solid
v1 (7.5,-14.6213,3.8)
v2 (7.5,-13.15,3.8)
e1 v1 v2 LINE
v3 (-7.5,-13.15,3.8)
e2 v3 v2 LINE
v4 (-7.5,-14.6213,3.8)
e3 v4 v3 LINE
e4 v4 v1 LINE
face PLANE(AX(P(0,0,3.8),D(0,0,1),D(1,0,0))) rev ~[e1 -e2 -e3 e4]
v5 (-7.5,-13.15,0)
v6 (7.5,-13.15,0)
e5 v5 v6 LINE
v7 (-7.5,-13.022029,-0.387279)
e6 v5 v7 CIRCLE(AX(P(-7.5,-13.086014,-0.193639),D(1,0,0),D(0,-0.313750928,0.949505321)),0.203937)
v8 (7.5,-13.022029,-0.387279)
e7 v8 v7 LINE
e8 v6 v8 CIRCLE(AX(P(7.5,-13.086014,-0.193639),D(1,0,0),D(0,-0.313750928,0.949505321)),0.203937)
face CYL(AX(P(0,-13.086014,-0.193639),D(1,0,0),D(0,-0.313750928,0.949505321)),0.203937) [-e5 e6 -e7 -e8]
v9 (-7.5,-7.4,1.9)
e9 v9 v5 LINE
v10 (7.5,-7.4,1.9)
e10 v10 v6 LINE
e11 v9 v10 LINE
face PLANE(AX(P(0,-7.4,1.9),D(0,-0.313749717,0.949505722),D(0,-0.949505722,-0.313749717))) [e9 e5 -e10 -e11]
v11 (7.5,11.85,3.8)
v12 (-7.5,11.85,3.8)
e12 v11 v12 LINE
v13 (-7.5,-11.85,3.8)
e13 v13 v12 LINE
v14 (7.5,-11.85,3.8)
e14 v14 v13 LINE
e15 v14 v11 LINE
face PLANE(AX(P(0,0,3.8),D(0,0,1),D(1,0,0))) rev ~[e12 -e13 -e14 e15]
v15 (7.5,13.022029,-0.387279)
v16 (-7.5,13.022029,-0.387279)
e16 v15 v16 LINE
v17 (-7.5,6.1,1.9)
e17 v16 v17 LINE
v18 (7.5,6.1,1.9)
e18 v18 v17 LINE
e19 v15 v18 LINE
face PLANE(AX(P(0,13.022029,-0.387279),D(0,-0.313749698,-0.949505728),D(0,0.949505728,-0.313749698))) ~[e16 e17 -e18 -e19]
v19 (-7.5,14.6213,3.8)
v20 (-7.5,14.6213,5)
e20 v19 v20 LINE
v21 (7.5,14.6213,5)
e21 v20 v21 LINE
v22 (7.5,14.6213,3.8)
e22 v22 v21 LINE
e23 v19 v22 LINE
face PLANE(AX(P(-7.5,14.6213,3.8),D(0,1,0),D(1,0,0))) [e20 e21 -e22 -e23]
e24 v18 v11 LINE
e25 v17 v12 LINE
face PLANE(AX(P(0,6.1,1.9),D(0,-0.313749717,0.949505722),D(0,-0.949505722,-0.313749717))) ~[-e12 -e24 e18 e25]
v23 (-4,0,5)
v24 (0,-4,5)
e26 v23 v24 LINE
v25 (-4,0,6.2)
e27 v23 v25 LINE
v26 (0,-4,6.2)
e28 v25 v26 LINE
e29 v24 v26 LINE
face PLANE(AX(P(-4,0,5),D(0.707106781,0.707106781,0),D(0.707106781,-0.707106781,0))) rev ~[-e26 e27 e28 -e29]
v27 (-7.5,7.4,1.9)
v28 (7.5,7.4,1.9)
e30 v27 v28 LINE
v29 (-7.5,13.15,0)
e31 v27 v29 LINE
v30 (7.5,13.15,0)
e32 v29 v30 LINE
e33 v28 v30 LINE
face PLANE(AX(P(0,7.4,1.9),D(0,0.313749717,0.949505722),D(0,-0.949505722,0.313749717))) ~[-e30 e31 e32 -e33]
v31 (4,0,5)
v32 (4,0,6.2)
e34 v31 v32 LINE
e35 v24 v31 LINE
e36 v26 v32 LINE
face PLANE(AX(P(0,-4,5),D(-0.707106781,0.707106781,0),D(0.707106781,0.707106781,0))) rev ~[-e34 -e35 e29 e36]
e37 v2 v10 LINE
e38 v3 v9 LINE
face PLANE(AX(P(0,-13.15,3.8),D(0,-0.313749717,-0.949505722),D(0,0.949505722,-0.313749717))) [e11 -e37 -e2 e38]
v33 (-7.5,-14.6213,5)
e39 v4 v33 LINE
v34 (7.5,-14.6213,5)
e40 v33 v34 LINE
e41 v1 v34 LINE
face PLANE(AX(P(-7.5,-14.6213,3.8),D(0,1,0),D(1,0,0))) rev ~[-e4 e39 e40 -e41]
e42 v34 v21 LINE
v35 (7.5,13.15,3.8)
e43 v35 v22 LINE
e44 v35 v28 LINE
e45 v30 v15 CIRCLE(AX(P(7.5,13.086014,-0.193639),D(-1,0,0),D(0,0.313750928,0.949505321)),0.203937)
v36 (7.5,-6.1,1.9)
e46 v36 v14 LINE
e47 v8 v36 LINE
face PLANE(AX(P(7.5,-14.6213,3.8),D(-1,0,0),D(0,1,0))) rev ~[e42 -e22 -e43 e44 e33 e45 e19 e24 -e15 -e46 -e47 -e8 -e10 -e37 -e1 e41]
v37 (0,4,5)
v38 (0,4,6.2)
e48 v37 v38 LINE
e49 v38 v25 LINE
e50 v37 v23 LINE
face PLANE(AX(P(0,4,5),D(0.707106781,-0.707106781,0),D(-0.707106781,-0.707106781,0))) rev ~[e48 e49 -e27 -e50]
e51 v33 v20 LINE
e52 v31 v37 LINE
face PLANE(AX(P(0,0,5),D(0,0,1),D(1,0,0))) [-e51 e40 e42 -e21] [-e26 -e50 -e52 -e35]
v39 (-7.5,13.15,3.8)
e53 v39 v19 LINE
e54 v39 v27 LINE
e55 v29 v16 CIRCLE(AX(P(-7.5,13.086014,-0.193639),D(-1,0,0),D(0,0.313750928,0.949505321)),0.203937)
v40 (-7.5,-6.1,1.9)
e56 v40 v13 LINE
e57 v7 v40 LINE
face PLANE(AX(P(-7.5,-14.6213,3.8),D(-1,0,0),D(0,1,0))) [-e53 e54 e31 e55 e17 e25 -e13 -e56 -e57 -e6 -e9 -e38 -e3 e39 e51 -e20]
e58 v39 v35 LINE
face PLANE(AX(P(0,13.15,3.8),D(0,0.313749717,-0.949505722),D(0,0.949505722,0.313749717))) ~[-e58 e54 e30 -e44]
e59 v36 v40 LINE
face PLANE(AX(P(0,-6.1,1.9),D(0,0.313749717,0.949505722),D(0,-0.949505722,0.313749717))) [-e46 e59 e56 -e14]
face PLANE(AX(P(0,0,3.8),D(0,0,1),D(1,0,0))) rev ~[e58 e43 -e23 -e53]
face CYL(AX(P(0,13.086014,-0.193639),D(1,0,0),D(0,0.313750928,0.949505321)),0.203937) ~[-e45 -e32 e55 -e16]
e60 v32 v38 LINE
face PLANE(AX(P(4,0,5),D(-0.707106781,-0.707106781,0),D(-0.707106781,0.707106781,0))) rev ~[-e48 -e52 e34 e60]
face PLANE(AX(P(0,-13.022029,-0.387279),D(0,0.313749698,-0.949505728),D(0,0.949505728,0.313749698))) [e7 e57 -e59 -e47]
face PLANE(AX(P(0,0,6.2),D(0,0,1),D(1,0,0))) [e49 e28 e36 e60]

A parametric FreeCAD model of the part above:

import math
import FreeCAD as App
import Part
import Sketcher
from FreeCAD import Vector
Q = App.Units.Quantity

doc = App.newDocument("Part")
params = doc.addObject("Spreadsheet::Sheet", "Params")
for row, (alias, value) in enumerate([
    ("sketch1_width", "1.3 mm"),
    ("pad1_length", "15 mm"),
    ("sketch2_width", "15 mm"),
    ("pad2_length", "1.2 mm"),
    ("pad3_length", "1.2 mm"),
], start=1):
    params.set(f"A{row}", alias)
    params.set(f"B{row}", "=" + value)
    params.setAlias(f"B{row}", alias)

body = doc.addObject("PartDesign::Body", "Body")

# Sketch on YZ plane
sketch1 = doc.addObject("Sketcher::SketchObject", "Sketch")
body.addObject(sketch1)
sketch1.AttachmentSupport = (doc.YZ_Plane, [""])
sketch1.MapMode = "FlatFace"
sketch1.addGeometry([
    Part.LineSegment(Vector(-11.85, 3.8, 0), Vector(-13.15, 3.8, 0)),  # 0
    Part.LineSegment(Vector(-13.15, 3.8, 0), Vector(-7.4, 1.9, 0)),  # 1
    Part.LineSegment(Vector(-7.4, 1.9, 0), Vector(-13.15, 0, 0)),  # 2
    Part.ArcOfCircle(Part.Circle(Vector(-13.086014, -0.193639, 0), Vector(0, 0, 1), 0.203937), math.radians(108.285425), math.radians(288.285425)),  # 3
    Part.LineSegment(Vector(-13.022029, -0.387279, 0), Vector(-6.1, 1.9, 0)),  # 4
    Part.LineSegment(Vector(-6.1, 1.9, 0), Vector(-11.85, 3.8, 0)),  # 5
], False)
sketch1.addConstraint([
    Sketcher.Constraint("Coincident", 0, 2, 1, 1),
    Sketcher.Constraint("Coincident", 1, 2, 2, 1),
    Sketcher.Constraint("Tangent", 2, 2, 3, 1),
    Sketcher.Constraint("Tangent", 3, 2, 4, 1),
    Sketcher.Constraint("Coincident", 4, 2, 5, 1),
    Sketcher.Constraint("Coincident", 5, 2, 0, 1),
    Sketcher.Constraint("Horizontal", 0),
    Sketcher.Constraint("PointOnObject", 2, 2, -1),
    Sketcher.Constraint("Parallel", 2, 4),
    Sketcher.Constraint("Parallel", 1, 5),
    Sketcher.Constraint("Horizontal", 1, 2, 4, 2),
    Sketcher.Constraint("Vertical", 0, 2, 2, 2),
    Sketcher.Constraint("Equal", 1, 2),
    Sketcher.Constraint("DistanceX", 0, 2, 0, 1, Q("1.3 mm")),
    Sketcher.Constraint("DistanceY", -1, 1, 0, 2, Q("3.8 mm")),
    Sketcher.Constraint("DistanceX", 1, 2, -1, 1, Q("7.4 mm")),
    Sketcher.Constraint("DistanceX", 0, 2, -1, 1, Q("13.15 mm")),
])
sketch1.setExpression("Constraints[13]", "Params.sketch1_width")
pad1 = doc.addObject("PartDesign::Pad", "Pad")
body.addObject(pad1)
pad1.Profile = sketch1
pad1.setExpression("Length", "Params.pad1_length")
pad1.Midplane = True

# Sketch on XY plane
sketch2 = doc.addObject("Sketcher::SketchObject", "Sketch001")
body.addObject(sketch2)
sketch2.AttachmentSupport = (doc.XY_Plane, [""])
sketch2.MapMode = "FlatFace"
sketch2.AttachmentOffset = App.Placement(Vector(0, 0, 3.8), App.Rotation())
sketch2.addGeometry([
    Part.LineSegment(Vector(-7.5, 14.6213, 0), Vector(-7.5, -14.6213, 0)),
    Part.LineSegment(Vector(-7.5, -14.6213, 0), Vector(7.5, -14.6213, 0)),
    Part.LineSegment(Vector(7.5, -14.6213, 0), Vector(7.5, 14.6213, 0)),
    Part.LineSegment(Vector(7.5, 14.6213, 0), Vector(-7.5, 14.6213, 0)),
], False)
sketch2.addConstraint([
    Sketcher.Constraint("Coincident", 0, 2, 1, 1),
    Sketcher.Constraint("Coincident", 1, 2, 2, 1),
    Sketcher.Constraint("Coincident", 2, 2, 3, 1),
    Sketcher.Constraint("Coincident", 3, 2, 0, 1),
    Sketcher.Constraint("Vertical", 0),
    Sketcher.Constraint("Horizontal", 1),
    Sketcher.Constraint("Vertical", 2),
    Sketcher.Constraint("Horizontal", 3),
    Sketcher.Constraint("Symmetric", 0, 2, 2, 2, -1, 1),
    Sketcher.Constraint("DistanceX", 1, 1, 1, 2, Q("15 mm")),
    Sketcher.Constraint("DistanceY", 0, 2, 0, 1, Q("29.2426 mm")),
])
sketch2.setExpression("Constraints[9]", "Params.sketch2_width")
pad2 = doc.addObject("PartDesign::Pad", "Pad001")
body.addObject(pad2)
pad2.Profile = sketch2
pad2.setExpression("Length", "Params.pad2_length")
doc.recompute()

mirrored = doc.addObject("PartDesign::Mirrored", "Mirrored")
body.addObject(mirrored)
mirrored.Originals = [pad1]
mirrored.MirrorPlane = (doc.XZ_Plane, [""])
body.Tip = mirrored

# Sketch on XY plane
sketch3 = doc.addObject("Sketcher::SketchObject", "Sketch002")
body.addObject(sketch3)
sketch3.AttachmentSupport = (doc.XY_Plane, [""])
sketch3.MapMode = "FlatFace"
sketch3.AttachmentOffset = App.Placement(Vector(0, 0, 5), App.Rotation())
sketch3.addGeometry([
    Part.LineSegment(Vector(4, 0, 0), Vector(0, 4, 0)),
    Part.LineSegment(Vector(0, 4, 0), Vector(-4, 0, 0)),
    Part.LineSegment(Vector(-4, 0, 0), Vector(0, -4, 0)),
    Part.LineSegment(Vector(0, -4, 0), Vector(4, 0, 0)),
], False)
sketch3.addConstraint([
    Sketcher.Constraint("Coincident", 0, 2, 1, 1),
    Sketcher.Constraint("Coincident", 1, 2, 2, 1),
    Sketcher.Constraint("Coincident", 2, 2, 3, 1),
    Sketcher.Constraint("Coincident", 3, 2, 0, 1),
    Sketcher.Constraint("Symmetric", 0, 2, 2, 2, -1, 1),
    Sketcher.Constraint("Symmetric", 1, 2, 3, 2, -1, 1),
    Sketcher.Constraint("PointOnObject", 0, 2, -2),
    Sketcher.Constraint("PointOnObject", 1, 2, -1),
    Sketcher.Constraint("Perpendicular", 0, 1),
    Sketcher.Constraint("DistanceY", -1, 1, 0, 2, Q("4 mm")),
])
pad3 = doc.addObject("PartDesign::Pad", "Pad002")
body.addObject(pad3)
pad3.Profile = sketch3
pad3.setExpression("Length", "Params.pad3_length")

doc.recompute()
